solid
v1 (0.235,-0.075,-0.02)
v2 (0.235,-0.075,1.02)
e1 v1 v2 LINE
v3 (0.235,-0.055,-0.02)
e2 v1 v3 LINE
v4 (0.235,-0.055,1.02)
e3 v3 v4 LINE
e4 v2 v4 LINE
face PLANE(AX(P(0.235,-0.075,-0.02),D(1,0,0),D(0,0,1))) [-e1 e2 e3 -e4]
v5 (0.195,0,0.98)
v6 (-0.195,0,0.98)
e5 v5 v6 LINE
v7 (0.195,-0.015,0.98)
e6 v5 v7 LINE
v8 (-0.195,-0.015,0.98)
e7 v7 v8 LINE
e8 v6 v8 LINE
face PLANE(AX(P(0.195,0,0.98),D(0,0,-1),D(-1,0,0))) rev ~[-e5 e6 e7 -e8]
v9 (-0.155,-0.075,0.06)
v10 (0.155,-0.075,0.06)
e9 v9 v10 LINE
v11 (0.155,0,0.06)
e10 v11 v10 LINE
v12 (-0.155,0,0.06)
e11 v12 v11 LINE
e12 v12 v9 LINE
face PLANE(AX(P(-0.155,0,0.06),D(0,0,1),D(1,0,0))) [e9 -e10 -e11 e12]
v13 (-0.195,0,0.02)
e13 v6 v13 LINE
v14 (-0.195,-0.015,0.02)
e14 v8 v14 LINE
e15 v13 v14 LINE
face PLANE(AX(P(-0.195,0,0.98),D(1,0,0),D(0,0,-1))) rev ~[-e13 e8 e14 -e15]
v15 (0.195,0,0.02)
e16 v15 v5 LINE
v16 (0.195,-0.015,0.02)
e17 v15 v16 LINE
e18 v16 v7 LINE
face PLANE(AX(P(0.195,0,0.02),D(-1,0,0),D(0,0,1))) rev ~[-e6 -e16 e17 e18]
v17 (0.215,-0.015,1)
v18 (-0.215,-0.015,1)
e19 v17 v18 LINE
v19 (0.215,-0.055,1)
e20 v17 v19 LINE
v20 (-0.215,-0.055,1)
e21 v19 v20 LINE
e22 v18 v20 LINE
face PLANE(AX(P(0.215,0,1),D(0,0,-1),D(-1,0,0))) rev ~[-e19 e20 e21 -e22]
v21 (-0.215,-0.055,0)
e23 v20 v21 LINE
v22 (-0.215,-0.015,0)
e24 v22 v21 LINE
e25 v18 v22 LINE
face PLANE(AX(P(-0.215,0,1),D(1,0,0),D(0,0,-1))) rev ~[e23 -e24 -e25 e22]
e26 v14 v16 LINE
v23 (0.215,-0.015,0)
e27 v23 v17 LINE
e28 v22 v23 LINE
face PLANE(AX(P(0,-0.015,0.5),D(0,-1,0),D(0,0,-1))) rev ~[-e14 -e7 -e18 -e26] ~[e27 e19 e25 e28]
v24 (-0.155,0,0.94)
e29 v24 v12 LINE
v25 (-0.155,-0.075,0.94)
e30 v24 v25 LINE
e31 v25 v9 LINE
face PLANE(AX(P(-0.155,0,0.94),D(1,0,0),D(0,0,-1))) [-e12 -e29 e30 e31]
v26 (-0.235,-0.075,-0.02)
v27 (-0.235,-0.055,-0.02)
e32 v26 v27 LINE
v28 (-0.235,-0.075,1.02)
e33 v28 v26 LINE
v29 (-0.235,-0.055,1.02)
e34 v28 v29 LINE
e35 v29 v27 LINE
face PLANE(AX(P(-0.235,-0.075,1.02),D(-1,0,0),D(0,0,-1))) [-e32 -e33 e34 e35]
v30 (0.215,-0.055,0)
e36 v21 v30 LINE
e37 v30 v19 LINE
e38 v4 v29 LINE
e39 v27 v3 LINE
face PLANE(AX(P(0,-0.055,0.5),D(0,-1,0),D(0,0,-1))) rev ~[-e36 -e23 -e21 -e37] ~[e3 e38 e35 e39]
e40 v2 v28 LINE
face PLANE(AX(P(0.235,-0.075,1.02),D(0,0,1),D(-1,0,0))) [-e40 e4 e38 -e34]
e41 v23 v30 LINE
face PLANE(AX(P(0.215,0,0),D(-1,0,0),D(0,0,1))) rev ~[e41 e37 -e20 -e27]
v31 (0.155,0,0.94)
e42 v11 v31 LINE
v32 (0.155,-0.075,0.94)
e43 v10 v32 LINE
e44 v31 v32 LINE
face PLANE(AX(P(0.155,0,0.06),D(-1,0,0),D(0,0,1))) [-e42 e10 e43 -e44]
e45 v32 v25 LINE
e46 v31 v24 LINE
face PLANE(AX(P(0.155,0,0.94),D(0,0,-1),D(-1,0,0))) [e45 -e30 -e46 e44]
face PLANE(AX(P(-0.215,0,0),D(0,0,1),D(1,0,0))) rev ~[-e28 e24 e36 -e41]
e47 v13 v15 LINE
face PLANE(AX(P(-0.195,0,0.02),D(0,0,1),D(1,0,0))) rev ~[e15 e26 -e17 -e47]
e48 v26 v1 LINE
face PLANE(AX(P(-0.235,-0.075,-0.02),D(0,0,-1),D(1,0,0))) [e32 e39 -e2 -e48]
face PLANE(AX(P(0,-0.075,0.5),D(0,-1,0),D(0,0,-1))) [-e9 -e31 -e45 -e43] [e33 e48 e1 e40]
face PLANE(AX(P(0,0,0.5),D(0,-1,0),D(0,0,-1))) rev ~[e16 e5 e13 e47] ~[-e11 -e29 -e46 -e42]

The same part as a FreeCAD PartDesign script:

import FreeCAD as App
import Part
import Sketcher

doc = App.newDocument("Part")
body = doc.addObject("PartDesign::Body", "Body")

# Sketch on XZ plane
sketch1 = doc.addObject("Sketcher::SketchObject", "Sketch")
body.addObject(sketch1)
sketch1.AttachmentSupport = (doc.XZ_Plane, [""])
sketch1.MapMode = "FlatFace"
sketch1.addGeometry(Part.LineSegment(App.Vector(-0.215, 1, 0), App.Vector(-0.215, 0, 0)), False)
sketch1.addGeometry(Part.LineSegment(App.Vector(-0.215, 0, 0), App.Vector(0.215, 0, 0)), False)
sketch1.addGeometry(Part.LineSegment(App.Vector(0.215, 0, 0), App.Vector(0.215, 1, 0)), False)
sketch1.addGeometry(Part.LineSegment(App.Vector(0.215, 1, 0), App.Vector(-0.215, 1, 0)), False)
sketch1.addConstraint(Sketcher.Constraint("Coincident", 0, 2, 1, 1))
sketch1.addConstraint(Sketcher.Constraint("Coincident", 1, 2, 2, 1))
sketch1.addConstraint(Sketcher.Constraint("Coincident", 2, 2, 3, 1))
sketch1.addConstraint(Sketcher.Constraint("Coincident", 3, 2, 0, 1))
sketch1.addConstraint(Sketcher.Constraint("Vertical", 0))
sketch1.addConstraint(Sketcher.Constraint("Horizontal", 1))
sketch1.addConstraint(Sketcher.Constraint("Vertical", 2))
sketch1.addConstraint(Sketcher.Constraint("Horizontal", 3))
sketch1.addConstraint(Sketcher.Constraint("Symmetric", 0, 2, 1, 2, -1, 1))
sketch1.addConstraint(Sketcher.Constraint("DistanceY", 0, 2, 0, 1, 1.0))
sketch1.addConstraint(Sketcher.Constraint("DistanceX", 0, 2, -1, 1, 0.215))
pad1 = doc.addObject("PartDesign::Pad", "Pad")
body.addObject(pad1)
pad1.Profile = sketch1
pad1.Length = 0.075

# Sketch on XZ plane
sketch2 = doc.addObject("Sketcher::SketchObject", "Sketch001")
body.addObject(sketch2)
sketch2.AttachmentSupport = (doc.XZ_Plane, [""])
sketch2.MapMode = "FlatFace"
sketch2.addGeometry(Part.LineSegment(App.Vector(-0.155, 0.94, 0), App.Vector(0.155, 0.94, 0)), False)
sketch2.addGeometry(Part.LineSegment(App.Vector(0.155, 0.94, 0), App.Vector(0.155, 0.06, 0)), False)
sketch2.addGeometry(Part.LineSegment(App.Vector(0.155, 0.06, 0), App.Vector(-0.155, 0.06, 0)), False)
sketch2.addGeometry(Part.LineSegment(App.Vector(-0.155, 0.06, 0), App.Vector(-0.155, 0.94, 0)), False)
sketch2.addConstraint(Sketcher.Constraint("Coincident", 0, 2, 1, 1))
sketch2.addConstraint(Sketcher.Constraint("Coincident", 1, 2, 2, 1))
sketch2.addConstraint(Sketcher.Constraint("Coincident", 2, 2, 3, 1))
sketch2.addConstraint(Sketcher.Constraint("Coincident", 3, 2, 0, 1))
sketch2.addConstraint(Sketcher.Constraint("Horizontal", 0))
sketch2.addConstraint(Sketcher.Constraint("Vertical", 1))
sketch2.addConstraint(Sketcher.Constraint("Horizontal", 2))
sketch2.addConstraint(Sketcher.Constraint("Vertical", 3))
sketch2.addConstraint(Sketcher.Constraint("DistanceX", 0, 1, 0, 2, 0.31))
sketch2.addConstraint(Sketcher.Constraint("DistanceY", 1, 2, 1, 1, 0.88))
sketch2.addConstraint(Sketcher.Constraint("DistanceY", -1, 1, 0, 2, 0.94))
sketch2.addConstraint(Sketcher.Constraint("DistanceX", -1, 1, 0, 2, 0.155))
pocket1 = doc.addObject("PartDesign::Pocket", "Pocket")
body.addObject(pocket1)
pocket1.Profile = sketch2
pocket1.Type = "UpToFirst"
pocket1.Reversed = True

# Sketch on XZ plane
sketch3 = doc.addObject("Sketcher::SketchObject", "Sketch002")
body.addObject(sketch3)
sketch3.AttachmentSupport = (doc.XZ_Plane, [""])
sketch3.MapMode = "FlatFace"
sketch3.addGeometry(Part.LineSegment(App.Vector(0.215, 1, 0), App.Vector(0.215, 0, 0)), False)
sketch3.addGeometry(Part.LineSegment(App.Vector(0.215, 0, 0), App.Vector(-0.215, 0, 0)), False)
sketch3.addGeometry(Part.LineSegment(App.Vector(-0.215, 0, 0), App.Vector(-0.215, 1, 0)), False)
sketch3.addGeometry(Part.LineSegment(App.Vector(-0.215, 1, 0), App.Vector(0.215, 1, 0)), False)
sketch3.addGeometry(Part.LineSegment(App.Vector(-0.195, 0.02, 0), App.Vector(0.195, 0.02, 0)), False)
sketch3.addGeometry(Part.LineSegment(App.Vector(0.195, 0.02, 0), App.Vector(0.195, 0.98, 0)), False)
sketch3.addGeometry(Part.LineSegment(App.Vector(0.195, 0.98, 0), App.Vector(-0.195, 0.98, 0)), False)
sketch3.addGeometry(Part.LineSegment(App.Vector(-0.195, 0.98, 0), App.Vector(-0.195, 0.02, 0)), False)
sketch3.addConstraint(Sketcher.Constraint("Coincident", 0, 2, 1, 1))
sketch3.addConstraint(Sketcher.Constraint("Coincident", 1, 2, 2, 1))
sketch3.addConstraint(Sketcher.Constraint("Coincident", 2, 2, 3, 1))
sketch3.addConstraint(Sketcher.Constraint("Coincident", 3, 2, 0, 1))
sketch3.addConstraint(Sketcher.Constraint("Coincident", 4, 2, 5, 1))
sketch3.addConstraint(Sketcher.Constraint("Coincident", 5, 2, 6, 1))
sketch3.addConstraint(Sketcher.Constraint("Coincident", 6, 2, 7, 1))
sketch3.addConstraint(Sketcher.Constraint("Coincident", 7, 2, 4, 1))
sketch3.addConstraint(Sketcher.Constraint("Vertical", 0))
sketch3.addConstraint(Sketcher.Constraint("Horizontal", 1))
sketch3.addConstraint(Sketcher.Constraint("Vertical", 2))
sketch3.addConstraint(Sketcher.Constraint("Horizontal", 3))
sketch3.addConstraint(Sketcher.Constraint("Horizontal", 4))
sketch3.addConstraint(Sketcher.Constraint("Vertical", 5))
sketch3.addConstraint(Sketcher.Constraint("Horizontal", 6))
sketch3.addConstraint(Sketcher.Constraint("Vertical", 7))
sketch3.addConstraint(Sketcher.Constraint("Symmetric", 0, 2, 1, 2, -1, 1))
sketch3.addConstraint(Sketcher.Constraint("DistanceY", 0, 2, 0, 1, 1.0))
sketch3.addConstraint(Sketcher.Constraint("DistanceX", 1, 2, 1, 1, 0.43))
sketch3.addConstraint(Sketcher.Constraint("DistanceX", 4, 1, 4, 2, 0.39))
sketch3.addConstraint(Sketcher.Constraint("DistanceY", 5, 1, 5, 2, 0.96))
sketch3.addConstraint(Sketcher.Constraint("DistanceY", -1, 1, 4, 2, 0.02))
sketch3.addConstraint(Sketcher.Constraint("DistanceX", 4, 2, 0, 2, 0.02))
pocket2 = doc.addObject("PartDesign::Pocket", "Pocket001")
body.addObject(pocket2)
pocket2.Profile = sketch3
pocket2.Length = 0.015
pocket2.Reversed = True

# Sketch on XZ plane
sketch4 = doc.addObject("Sketcher::SketchObject", "Sketch003")
body.addObject(sketch4)
sketch4.AttachmentSupport = (doc.XZ_Plane, [""])
sketch4.MapMode = "FlatFace"
sketch4.AttachmentOffset = App.Placement(App.Vector(0, 0, 0.075), App.Rotation())
sketch4.addGeometry(Part.LineSegment(App.Vector(0.235, 1.02, 0), App.Vector(-0.235, 1.02, 0)), False)
sketch4.addGeometry(Part.LineSegment(App.Vector(-0.235, 1.02, 0), App.Vector(-0.235, -0.02, 0)), False)
sketch4.addGeometry(Part.LineSegment(App.Vector(-0.235, -0.02, 0), App.Vector(0.235, -0.02, 0)), False)
sketch4.addGeometry(Part.LineSegment(App.Vector(0.235, -0.02, 0), App.Vector(0.235, 1.02, 0)), False)
sketch4.addGeometry(Part.LineSegment(App.Vector(-0.215, 1, 0), App.Vector(0.215, 1, 0)), False)
sketch4.addGeometry(Part.LineSegment(App.Vector(0.215, 1, 0), App.Vector(0.215, 0, 0)), False)
sketch4.addGeometry(Part.LineSegment(App.Vector(0.215, 0, 0), App.Vector(-0.215, 0, 0)), False)
sketch4.addGeometry(Part.LineSegment(App.Vector(-0.215, 0, 0), App.Vector(-0.215, 1, 0)), False)
sketch4.addConstraint(Sketcher.Constraint("Coincident", 0, 2, 1, 1))
sketch4.addConstraint(Sketcher.Constraint("Coincident", 1, 2, 2, 1))
sketch4.addConstraint(Sketcher.Constraint("Coincident", 2, 2, 3, 1))
sketch4.addConstraint(Sketcher.Constraint("Coincident", 3, 2, 0, 1))
sketch4.addConstraint(Sketcher.Constraint("Coincident", 4, 2, 5, 1))
sketch4.addConstraint(Sketcher.Constraint("Coincident", 5, 2, 6, 1))
sketch4.addConstraint(Sketcher.Constraint("Coincident", 6, 2, 7, 1))
sketch4.addConstraint(Sketcher.Constraint("Coincident", 7, 2, 4, 1))
sketch4.addConstraint(Sketcher.Constraint("Horizontal", 0))
sketch4.addConstraint(Sketcher.Constraint("Vertical", 1))
sketch4.addConstraint(Sketcher.Constraint("Horizontal", 2))
sketch4.addConstraint(Sketcher.Constraint("Vertical", 3))
sketch4.addConstraint(Sketcher.Constraint("Horizontal", 4))
sketch4.addConstraint(Sketcher.Constraint("Vertical", 5))
sketch4.addConstraint(Sketcher.Constraint("Horizontal", 6))
sketch4.addConstraint(Sketcher.Constraint("Vertical", 7))
sketch4.addConstraint(Sketcher.Constraint("Symmetric", 5, 2, 6, 2, -1, 1))
sketch4.addConstraint(Sketcher.Constraint("DistanceY", 5, 2, 5, 1, 1.0))
sketch4.addConstraint(Sketcher.Constraint("DistanceX", 0, 2, 0, 1, 0.47))
sketch4.addConstraint(Sketcher.Constraint("DistanceX", 4, 1, 4, 2, 0.43))
sketch4.addConstraint(Sketcher.Constraint("DistanceY", 1, 2, 1, 1, 1.04))
sketch4.addConstraint(Sketcher.Constraint("DistanceY", -1, 1, 0, 2, 1.02))
sketch4.addConstraint(Sketcher.Constraint("DistanceX", 4, 2, 3, 2, 0.02))
pad2 = doc.addObject("PartDesign::Pad", "Pad001")
body.addObject(pad2)
pad2.Profile = sketch4
pad2.Length = 0.02
pad2.Reversed = True

doc.recompute()
